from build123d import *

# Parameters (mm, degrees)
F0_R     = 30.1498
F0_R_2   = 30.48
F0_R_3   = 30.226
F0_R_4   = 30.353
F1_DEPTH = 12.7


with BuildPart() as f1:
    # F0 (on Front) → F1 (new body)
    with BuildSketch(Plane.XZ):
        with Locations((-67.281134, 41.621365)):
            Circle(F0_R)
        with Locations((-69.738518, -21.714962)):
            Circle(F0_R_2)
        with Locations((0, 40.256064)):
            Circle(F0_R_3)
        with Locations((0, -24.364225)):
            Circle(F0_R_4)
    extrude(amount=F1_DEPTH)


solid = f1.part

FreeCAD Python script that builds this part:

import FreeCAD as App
import Part
import Sketcher

V = App.Vector
Q = App.Units.Quantity

doc = App.newDocument("Part")
params = doc.addObject("Spreadsheet::Sheet", "Params")
for row, (alias, value) in enumerate([
    ("sketch1_diameter", "2.4 in"),
    ("sketch1_diameter2", "2.38 in"),
    ("sketch1_diameter3", "2.39 in"),
    ("sketch1_diameter4", "2.374 in"),
    ("pad1_length", "0.5 in"),
], start=1):
    params.set(f"A{row}", alias)
    params.set(f"B{row}", "=" + value)
    params.setAlias(f"B{row}", alias)

body = doc.addObject("PartDesign::Body", "Body")
body.AllowCompound = True

# Sketch on XZ plane
sketch1 = body.newObject("Sketcher::SketchObject", "Sketch")
sketch1.AttachmentSupport = (doc.getObject("XZ_Plane"), [""])
sketch1.MapMode = "FlatFace"
sketch1.addGeometry(Part.Circle(V(-67.281134, 41.621365, 0), V(0, 0, 1), 30.1498), False)
sketch1.addGeometry(Part.Circle(V(-69.738518, -21.714962, 0), V(0, 0, 1), 30.48), False)
sketch1.addGeometry(Part.Circle(V(0, 40.256064, 0), V(0, 0, 1), 30.226), False)
sketch1.addGeometry(Part.Circle(V(0, -24.364225, 0), V(0, 0, 1), 30.353), False)
sketch1.addConstraint(Sketcher.Constraint("PointOnObject", 2, 3, -2))
sketch1.addConstraint(Sketcher.Constraint("PointOnObject", 3, 3, -2))
sketch1.addConstraint(Sketcher.Constraint("Diameter", 1, Q("2.4 in")))
sketch1.addConstraint(Sketcher.Constraint("Diameter", 2, Q("2.38 in")))
sketch1.addConstraint(Sketcher.Constraint("Diameter", 3, Q("2.39 in")))
sketch1.addConstraint(Sketcher.Constraint("Diameter", 0, Q("2.374 in")))
sketch1.addConstraint(Sketcher.Constraint("DistanceY", 2, 3, 0, 3, 1.365301))
sketch1.addConstraint(Sketcher.Constraint("DistanceX", 1, 3, -1, 1, 69.738518))
sketch1.addConstraint(Sketcher.Constraint("DistanceY", 1, 3, -1, 1, 21.714962))
sketch1.addConstraint(Sketcher.Constraint("DistanceY", 3, 3, 2, 3, 64.620289))
sketch1.addConstraint(Sketcher.Constraint("DistanceX", 0, 3, -1, 1, 67.281134))
sketch1.addConstraint(Sketcher.Constraint("DistanceY", -1, 1, 0, 3, 41.621365))
sketch1.setExpression("Constraints[2]", "Params.sketch1_diameter")
sketch1.setExpression("Constraints[3]", "Params.sketch1_diameter2")
sketch1.setExpression("Constraints[4]", "Params.sketch1_diameter3")
sketch1.setExpression("Constraints[5]", "Params.sketch1_diameter4")
pad1 = body.newObject("PartDesign::Pad", "Pad")
pad1.Profile = sketch1
pad1.setExpression("Length", "Params.pad1_length")

doc.recompute()
